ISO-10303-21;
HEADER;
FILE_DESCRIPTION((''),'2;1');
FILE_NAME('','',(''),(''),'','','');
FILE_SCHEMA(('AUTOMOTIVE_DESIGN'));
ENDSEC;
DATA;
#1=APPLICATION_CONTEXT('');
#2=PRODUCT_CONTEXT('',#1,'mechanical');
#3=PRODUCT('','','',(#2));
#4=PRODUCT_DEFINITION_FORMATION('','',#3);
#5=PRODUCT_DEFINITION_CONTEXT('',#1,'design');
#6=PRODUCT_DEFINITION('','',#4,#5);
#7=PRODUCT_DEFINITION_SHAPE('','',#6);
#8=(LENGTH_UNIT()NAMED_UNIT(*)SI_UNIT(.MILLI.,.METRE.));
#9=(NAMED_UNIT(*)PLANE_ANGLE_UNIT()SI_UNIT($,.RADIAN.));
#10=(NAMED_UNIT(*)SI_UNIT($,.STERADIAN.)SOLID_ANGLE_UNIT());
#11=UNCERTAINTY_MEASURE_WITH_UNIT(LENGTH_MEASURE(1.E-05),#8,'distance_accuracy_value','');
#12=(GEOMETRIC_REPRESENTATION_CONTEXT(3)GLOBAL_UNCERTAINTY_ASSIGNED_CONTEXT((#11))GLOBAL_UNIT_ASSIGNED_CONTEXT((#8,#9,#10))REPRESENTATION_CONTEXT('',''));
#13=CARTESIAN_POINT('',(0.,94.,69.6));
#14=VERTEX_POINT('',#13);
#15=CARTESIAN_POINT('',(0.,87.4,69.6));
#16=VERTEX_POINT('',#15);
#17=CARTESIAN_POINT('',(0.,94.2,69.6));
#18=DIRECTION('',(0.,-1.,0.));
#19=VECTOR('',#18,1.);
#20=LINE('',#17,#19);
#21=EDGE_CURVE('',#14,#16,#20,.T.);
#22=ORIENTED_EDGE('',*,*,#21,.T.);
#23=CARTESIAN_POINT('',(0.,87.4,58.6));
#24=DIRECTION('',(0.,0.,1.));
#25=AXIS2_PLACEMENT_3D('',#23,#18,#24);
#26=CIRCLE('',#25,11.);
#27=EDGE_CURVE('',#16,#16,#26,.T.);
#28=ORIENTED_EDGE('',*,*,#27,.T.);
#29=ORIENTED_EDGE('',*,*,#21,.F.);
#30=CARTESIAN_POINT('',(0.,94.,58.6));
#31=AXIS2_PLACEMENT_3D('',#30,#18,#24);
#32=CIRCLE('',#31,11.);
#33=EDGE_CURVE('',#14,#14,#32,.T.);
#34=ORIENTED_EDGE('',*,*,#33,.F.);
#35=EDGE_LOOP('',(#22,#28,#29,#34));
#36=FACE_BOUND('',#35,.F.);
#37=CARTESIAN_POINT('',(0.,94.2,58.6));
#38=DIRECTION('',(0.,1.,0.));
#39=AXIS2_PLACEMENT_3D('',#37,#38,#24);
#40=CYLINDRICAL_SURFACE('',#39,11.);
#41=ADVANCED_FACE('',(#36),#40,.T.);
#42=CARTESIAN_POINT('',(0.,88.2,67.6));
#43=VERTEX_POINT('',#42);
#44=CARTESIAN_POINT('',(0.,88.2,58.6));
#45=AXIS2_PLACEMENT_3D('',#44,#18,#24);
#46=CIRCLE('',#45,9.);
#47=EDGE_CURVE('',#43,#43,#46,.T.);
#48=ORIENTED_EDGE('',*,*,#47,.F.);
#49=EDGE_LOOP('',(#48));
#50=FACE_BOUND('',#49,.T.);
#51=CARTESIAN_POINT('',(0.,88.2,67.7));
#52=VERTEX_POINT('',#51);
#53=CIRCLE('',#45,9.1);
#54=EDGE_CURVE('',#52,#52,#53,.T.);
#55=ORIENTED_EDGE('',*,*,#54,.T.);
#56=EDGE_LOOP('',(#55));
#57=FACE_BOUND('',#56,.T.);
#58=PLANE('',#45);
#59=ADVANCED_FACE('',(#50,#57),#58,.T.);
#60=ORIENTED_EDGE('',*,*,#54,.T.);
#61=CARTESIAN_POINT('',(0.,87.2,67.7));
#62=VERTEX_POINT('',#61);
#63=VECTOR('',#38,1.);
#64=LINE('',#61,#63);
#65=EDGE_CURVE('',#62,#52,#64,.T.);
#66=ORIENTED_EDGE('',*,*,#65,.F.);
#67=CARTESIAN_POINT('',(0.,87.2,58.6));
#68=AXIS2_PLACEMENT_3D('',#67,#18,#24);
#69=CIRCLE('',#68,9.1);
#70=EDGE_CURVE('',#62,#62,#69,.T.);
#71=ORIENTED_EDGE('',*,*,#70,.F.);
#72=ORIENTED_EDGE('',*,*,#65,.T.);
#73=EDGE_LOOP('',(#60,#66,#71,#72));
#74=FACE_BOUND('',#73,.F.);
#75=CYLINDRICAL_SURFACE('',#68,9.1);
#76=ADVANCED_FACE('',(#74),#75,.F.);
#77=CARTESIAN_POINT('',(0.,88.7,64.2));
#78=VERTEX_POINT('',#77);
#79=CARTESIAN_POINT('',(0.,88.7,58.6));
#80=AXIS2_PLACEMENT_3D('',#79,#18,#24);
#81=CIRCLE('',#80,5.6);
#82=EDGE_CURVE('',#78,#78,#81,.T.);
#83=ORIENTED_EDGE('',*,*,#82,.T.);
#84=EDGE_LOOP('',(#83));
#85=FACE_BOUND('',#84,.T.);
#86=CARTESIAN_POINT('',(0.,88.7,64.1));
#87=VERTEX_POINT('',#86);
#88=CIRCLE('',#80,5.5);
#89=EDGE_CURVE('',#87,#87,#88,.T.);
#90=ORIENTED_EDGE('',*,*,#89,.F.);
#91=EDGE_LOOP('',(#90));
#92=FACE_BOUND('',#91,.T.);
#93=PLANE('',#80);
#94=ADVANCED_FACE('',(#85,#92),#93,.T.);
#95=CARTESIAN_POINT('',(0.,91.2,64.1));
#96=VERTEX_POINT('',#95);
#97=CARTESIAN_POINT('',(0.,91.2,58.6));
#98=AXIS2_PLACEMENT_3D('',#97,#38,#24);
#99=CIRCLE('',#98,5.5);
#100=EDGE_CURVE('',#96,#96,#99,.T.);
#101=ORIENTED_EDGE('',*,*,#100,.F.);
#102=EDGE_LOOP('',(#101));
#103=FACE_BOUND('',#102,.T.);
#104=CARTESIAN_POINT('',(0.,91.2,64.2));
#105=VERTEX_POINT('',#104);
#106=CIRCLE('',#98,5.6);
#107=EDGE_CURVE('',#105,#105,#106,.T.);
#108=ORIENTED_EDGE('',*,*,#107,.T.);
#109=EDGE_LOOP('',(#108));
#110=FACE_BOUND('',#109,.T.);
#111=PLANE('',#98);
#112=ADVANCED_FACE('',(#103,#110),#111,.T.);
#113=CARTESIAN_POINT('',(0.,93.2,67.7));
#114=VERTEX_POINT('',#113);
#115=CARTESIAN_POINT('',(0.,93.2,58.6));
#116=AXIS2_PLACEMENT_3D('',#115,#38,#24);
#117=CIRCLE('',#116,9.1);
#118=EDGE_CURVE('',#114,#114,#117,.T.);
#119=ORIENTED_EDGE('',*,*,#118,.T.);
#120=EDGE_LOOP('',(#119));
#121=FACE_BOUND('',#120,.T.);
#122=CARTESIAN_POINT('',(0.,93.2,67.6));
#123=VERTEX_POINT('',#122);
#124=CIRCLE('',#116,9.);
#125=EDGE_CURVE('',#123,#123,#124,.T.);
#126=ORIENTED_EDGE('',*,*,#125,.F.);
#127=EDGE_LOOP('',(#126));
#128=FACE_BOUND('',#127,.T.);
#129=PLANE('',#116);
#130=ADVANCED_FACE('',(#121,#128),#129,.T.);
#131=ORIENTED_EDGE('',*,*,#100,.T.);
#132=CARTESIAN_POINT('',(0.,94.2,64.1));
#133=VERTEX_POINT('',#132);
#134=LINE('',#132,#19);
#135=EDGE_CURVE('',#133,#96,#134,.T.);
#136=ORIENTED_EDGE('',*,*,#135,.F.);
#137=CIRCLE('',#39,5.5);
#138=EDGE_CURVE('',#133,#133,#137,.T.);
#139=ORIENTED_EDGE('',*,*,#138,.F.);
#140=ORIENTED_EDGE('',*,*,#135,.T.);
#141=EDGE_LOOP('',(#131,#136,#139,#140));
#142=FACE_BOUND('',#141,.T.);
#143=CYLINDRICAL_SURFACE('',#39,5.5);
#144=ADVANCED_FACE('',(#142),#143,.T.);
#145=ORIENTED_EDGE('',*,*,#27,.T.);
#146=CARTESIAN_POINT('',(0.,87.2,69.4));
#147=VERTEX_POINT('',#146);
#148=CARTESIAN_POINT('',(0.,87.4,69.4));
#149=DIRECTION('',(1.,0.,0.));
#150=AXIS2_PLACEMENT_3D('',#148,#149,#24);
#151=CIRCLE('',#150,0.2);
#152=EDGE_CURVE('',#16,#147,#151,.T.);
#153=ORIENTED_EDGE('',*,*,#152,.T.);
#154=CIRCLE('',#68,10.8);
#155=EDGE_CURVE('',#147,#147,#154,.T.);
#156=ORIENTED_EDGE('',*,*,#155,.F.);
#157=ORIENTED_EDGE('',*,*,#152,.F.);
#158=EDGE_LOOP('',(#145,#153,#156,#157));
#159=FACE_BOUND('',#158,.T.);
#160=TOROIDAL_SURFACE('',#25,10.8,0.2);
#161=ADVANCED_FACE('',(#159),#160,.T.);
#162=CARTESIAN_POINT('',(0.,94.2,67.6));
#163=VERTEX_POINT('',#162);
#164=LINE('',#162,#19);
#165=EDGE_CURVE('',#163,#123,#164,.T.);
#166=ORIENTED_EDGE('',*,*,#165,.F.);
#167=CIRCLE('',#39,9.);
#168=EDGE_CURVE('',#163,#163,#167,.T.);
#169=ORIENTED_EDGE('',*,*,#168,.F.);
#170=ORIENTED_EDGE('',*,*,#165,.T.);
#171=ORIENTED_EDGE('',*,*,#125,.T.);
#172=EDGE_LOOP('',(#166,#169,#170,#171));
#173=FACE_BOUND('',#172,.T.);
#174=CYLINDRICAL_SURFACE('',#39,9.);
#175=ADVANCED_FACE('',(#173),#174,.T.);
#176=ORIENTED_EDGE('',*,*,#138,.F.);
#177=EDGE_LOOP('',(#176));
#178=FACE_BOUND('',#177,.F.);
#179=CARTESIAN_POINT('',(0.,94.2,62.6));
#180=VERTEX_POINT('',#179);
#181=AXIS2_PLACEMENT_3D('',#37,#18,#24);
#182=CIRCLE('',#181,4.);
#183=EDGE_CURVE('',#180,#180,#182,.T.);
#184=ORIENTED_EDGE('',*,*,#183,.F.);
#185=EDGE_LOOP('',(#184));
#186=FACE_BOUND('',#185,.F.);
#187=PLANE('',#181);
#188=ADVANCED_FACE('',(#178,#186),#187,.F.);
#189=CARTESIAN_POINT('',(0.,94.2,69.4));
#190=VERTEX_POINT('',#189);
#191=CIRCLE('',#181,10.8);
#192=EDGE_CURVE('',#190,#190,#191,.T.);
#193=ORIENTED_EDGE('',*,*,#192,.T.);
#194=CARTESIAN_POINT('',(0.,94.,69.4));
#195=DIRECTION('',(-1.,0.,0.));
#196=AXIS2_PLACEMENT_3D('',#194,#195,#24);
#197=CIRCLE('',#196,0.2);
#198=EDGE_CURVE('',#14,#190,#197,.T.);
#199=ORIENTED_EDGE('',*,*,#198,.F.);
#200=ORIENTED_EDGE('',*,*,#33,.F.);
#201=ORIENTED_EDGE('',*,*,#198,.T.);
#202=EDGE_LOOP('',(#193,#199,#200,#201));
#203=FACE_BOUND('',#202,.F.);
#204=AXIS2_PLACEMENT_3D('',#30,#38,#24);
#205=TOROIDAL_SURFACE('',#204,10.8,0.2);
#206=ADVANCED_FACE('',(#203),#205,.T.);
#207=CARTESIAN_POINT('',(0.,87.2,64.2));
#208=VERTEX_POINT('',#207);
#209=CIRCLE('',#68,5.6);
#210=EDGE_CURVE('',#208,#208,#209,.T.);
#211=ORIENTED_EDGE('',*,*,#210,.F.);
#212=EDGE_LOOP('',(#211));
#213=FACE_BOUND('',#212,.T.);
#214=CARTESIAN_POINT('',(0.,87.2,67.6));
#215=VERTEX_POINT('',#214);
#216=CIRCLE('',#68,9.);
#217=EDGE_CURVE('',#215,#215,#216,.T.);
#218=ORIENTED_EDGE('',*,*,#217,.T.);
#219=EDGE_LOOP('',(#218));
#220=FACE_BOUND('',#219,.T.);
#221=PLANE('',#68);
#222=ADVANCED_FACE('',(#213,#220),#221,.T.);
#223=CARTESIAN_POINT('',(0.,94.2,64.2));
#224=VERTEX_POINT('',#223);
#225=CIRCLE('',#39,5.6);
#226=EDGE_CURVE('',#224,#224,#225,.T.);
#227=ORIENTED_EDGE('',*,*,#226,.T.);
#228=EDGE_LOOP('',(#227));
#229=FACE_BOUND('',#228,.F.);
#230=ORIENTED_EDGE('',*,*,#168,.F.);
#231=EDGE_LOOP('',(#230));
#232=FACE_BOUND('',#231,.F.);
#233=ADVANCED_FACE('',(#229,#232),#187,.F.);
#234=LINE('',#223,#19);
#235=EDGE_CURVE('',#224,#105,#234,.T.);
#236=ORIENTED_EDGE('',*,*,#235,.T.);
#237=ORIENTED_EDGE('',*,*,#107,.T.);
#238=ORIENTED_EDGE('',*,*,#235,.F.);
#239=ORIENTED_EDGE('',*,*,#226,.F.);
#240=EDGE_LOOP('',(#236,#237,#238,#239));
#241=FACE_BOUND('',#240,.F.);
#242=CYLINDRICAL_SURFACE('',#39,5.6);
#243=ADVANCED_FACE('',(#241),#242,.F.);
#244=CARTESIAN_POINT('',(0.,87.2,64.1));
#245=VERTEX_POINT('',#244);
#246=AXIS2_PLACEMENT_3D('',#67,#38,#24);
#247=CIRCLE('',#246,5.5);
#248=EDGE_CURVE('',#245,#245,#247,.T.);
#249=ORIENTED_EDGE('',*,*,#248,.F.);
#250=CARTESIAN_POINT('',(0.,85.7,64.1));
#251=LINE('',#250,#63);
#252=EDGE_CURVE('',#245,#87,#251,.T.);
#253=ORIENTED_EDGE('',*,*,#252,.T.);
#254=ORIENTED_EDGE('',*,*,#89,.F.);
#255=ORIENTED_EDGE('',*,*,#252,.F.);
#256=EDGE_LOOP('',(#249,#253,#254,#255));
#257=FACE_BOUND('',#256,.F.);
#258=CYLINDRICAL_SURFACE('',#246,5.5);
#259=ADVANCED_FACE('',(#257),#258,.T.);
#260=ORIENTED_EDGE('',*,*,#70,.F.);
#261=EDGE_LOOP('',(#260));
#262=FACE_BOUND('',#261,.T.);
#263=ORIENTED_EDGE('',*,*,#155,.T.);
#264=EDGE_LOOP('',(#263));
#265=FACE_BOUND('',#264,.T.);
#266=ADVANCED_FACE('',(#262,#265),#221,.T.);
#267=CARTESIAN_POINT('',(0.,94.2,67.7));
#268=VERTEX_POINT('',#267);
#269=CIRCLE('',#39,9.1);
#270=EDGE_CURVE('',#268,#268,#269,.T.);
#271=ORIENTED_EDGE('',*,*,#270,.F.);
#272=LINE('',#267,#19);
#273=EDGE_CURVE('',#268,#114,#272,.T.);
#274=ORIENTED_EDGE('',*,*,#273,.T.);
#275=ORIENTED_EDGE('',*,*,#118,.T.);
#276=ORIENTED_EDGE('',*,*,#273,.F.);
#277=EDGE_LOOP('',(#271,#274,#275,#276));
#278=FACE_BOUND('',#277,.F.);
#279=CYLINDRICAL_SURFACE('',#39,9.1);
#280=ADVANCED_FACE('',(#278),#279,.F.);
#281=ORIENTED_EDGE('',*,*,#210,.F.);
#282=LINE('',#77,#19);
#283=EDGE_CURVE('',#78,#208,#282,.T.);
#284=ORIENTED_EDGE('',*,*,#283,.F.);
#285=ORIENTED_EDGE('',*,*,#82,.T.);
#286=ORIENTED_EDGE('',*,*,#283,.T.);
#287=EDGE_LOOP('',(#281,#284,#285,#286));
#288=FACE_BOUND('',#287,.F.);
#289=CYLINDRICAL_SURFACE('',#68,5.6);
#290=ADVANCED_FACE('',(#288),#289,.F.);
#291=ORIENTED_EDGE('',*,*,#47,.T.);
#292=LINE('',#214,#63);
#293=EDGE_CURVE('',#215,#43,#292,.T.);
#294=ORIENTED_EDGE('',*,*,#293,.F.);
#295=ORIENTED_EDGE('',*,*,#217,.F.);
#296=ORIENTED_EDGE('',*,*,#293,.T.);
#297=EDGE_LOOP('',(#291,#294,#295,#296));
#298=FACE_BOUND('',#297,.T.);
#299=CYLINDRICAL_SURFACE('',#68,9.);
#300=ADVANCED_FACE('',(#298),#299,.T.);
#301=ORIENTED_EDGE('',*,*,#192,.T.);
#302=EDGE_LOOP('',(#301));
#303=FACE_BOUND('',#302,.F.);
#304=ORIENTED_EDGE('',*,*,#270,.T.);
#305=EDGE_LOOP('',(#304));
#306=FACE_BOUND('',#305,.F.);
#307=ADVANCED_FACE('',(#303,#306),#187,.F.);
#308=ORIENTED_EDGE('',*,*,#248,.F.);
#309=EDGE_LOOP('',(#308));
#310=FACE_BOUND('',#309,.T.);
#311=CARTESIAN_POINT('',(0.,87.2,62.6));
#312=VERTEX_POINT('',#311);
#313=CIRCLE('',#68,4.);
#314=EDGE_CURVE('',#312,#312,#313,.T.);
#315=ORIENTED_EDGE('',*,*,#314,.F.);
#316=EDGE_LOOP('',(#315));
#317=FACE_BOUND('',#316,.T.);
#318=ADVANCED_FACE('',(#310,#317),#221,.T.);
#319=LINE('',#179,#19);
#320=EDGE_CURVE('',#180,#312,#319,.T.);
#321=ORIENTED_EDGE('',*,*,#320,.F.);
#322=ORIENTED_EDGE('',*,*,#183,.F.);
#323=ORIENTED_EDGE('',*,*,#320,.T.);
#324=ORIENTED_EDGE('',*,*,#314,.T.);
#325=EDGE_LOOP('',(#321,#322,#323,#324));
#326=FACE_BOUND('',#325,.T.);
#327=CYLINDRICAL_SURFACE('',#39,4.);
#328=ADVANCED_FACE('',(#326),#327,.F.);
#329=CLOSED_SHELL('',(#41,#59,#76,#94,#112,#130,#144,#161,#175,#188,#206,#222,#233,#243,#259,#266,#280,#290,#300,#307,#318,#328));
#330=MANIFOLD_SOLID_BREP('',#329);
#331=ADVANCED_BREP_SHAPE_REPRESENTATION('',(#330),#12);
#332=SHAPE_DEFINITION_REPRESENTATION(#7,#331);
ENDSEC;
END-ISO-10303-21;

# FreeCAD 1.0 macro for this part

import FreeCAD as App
import Part
import Sketcher
Q = App.Units.Quantity


def edges_at(feature, points):
    """Names of the edges that pass closest to the given points."""
    edges = feature.Shape.Edges
    near = lambda p: min(range(len(edges)), key=lambda i: edges[i].distToShape(Part.Vertex(*p))[0])
    return sorted({f"Edge{near(p) + 1}" for p in points})

doc = App.newDocument("Part")
body = doc.addObject("PartDesign::Body", "Body")

# Sketch on XY plane
sketch1 = body.newObject("Sketcher::SketchObject", "Sketch")
sketch1.AttachmentSupport = (doc.getObject("XY_Plane"), [""])
sketch1.MapMode = "FlatFace"
sketch1.addGeometry([
    Part.Circle(App.Vector(0, 0, 0), App.Vector(0, 0, 1), 11),
    Part.Circle(App.Vector(0, 0, 0), App.Vector(0, 0, 1), 4),
], False)
sketch1.addConstraint([
    Sketcher.Constraint("Coincident", 0, 3, -1, 1),
    Sketcher.Constraint("Coincident", 1, 3, -1, 1),
    Sketcher.Constraint("Diameter", 0, Q("22 mm")),
    Sketcher.Constraint("Diameter", 1, Q("8 mm")),
])
pad1 = body.newObject("PartDesign::Pad", "Pad")
pad1.Profile = sketch1
pad1.Length = 7

# Sketch on XY plane
sketch2 = body.newObject("Sketcher::SketchObject", "Sketch001")
sketch2.AttachmentSupport = (doc.getObject("XY_Plane"), [""])
sketch2.MapMode = "FlatFace"
sketch2.AttachmentOffset = App.Placement(App.Vector(0, 0, 7), App.Rotation())
sketch2.addGeometry([
    Part.Circle(App.Vector(0, 0, 0), App.Vector(0, 0, 1), 5.6),
    Part.Circle(App.Vector(0, 0, 0), App.Vector(0, 0, 1), 5.5),
], False)
sketch2.addConstraint([
    Sketcher.Constraint("Coincident", 0, 3, -1, 1),
    Sketcher.Constraint("Coincident", 1, 3, -1, 1),
    Sketcher.Constraint("Diameter", 1, Q("11 mm")),
    Sketcher.Constraint("Diameter", 0, Q("11.2 mm")),
])
pocket1 = body.newObject("PartDesign::Pocket", "Pocket")
pocket1.Profile = sketch2
pocket1.Length = 3
pocket1.Midplane = True

# Sketch on XY plane
sketch3 = body.newObject("Sketcher::SketchObject", "Sketch002")
sketch3.AttachmentSupport = (doc.getObject("XY_Plane"), [""])
sketch3.MapMode = "FlatFace"
sketch3.addGeometry([
    Part.Circle(App.Vector(0, 0, 0), App.Vector(0, 0, 1), 5.6),
    Part.Circle(App.Vector(0, 0, 0), App.Vector(0, 0, 1), 5.5),
], False)
sketch3.addConstraint([
    Sketcher.Constraint("Coincident", 0, 3, -1, 1),
    Sketcher.Constraint("Coincident", 1, 3, -1, 1),
    Sketcher.Constraint("Diameter", 1, Q("11 mm")),
    Sketcher.Constraint("Diameter", 0, Q("11.2 mm")),
])
pocket2 = body.newObject("PartDesign::Pocket", "Pocket001")
pocket2.Profile = sketch3
pocket2.Length = 3
pocket2.Reversed = True

# Sketch on XY plane
sketch4 = body.newObject("Sketcher::SketchObject", "Sketch003")
sketch4.AttachmentSupport = (doc.getObject("XY_Plane"), [""])
sketch4.MapMode = "FlatFace"
sketch4.AttachmentOffset = App.Placement(App.Vector(0, 0, 7), App.Rotation())
sketch4.addGeometry([
    Part.Circle(App.Vector(0, 0, 0), App.Vector(0, 0, 1), 9.1),
    Part.Circle(App.Vector(0, 0, 0), App.Vector(0, 0, 1), 9),
], False)
sketch4.addConstraint([
    Sketcher.Constraint("Coincident", 0, 3, -1, 1),
    Sketcher.Constraint("Coincident", 1, 3, -1, 1),
    Sketcher.Constraint("Diameter", 1, Q("18 mm")),
    Sketcher.Constraint("Diameter", 0, Q("18.2 mm")),
])
pocket3 = body.newObject("PartDesign::Pocket", "Pocket002")
pocket3.Profile = sketch4
pocket3.Length = 1

# Sketch on XY plane
sketch5 = body.newObject("Sketcher::SketchObject", "Sketch004")
sketch5.AttachmentSupport = (doc.getObject("XY_Plane"), [""])
sketch5.MapMode = "FlatFace"
sketch5.addGeometry([
    Part.Circle(App.Vector(0, 0, 0), App.Vector(0, 0, 1), 9.1),
    Part.Circle(App.Vector(0, 0, 0), App.Vector(0, 0, 1), 9),
], False)
sketch5.addConstraint([
    Sketcher.Constraint("Coincident", 0, 3, -1, 1),
    Sketcher.Constraint("Coincident", 1, 3, -1, 1),
    Sketcher.Constraint("Diameter", 1, Q("18 mm")),
    Sketcher.Constraint("Diameter", 0, Q("18.2 mm")),
])
pocket4 = body.newObject("PartDesign::Pocket", "Pocket003")
pocket4.Profile = sketch5
pocket4.Length = 1
pocket4.Reversed = True
doc.recompute()

fillet = body.newObject("PartDesign::Fillet", "Fillet")
fillet.Base = (pocket4, edges_at(pocket4, [(-11, 0, 0), (-11, 0, 7)]))
fillet.Radius = 0.2
body2 = doc.addObject("PartDesign::Body", "Body001")
doc.recompute()

body.Placement = App.Placement(App.Vector(0, 0, 0), App.Rotation(App.Vector(0, 1, 0), 270))
boolean = body2.newObject("PartDesign::Boolean", "Boolean")
boolean.Type = "Fuse"
boolean.addObjects([body])
body3 = doc.addObject("PartDesign::Body", "Body002")
doc.recompute()

body2.Placement = App.Placement(App.Vector(0, 94.2, 58.6), App.Rotation(App.Vector(0, 0, 1), 90))
boolean2 = body3.newObject("PartDesign::Boolean", "Boolean001")
boolean2.Type = "Fuse"
boolean2.addObjects([body2])

doc.recompute()
